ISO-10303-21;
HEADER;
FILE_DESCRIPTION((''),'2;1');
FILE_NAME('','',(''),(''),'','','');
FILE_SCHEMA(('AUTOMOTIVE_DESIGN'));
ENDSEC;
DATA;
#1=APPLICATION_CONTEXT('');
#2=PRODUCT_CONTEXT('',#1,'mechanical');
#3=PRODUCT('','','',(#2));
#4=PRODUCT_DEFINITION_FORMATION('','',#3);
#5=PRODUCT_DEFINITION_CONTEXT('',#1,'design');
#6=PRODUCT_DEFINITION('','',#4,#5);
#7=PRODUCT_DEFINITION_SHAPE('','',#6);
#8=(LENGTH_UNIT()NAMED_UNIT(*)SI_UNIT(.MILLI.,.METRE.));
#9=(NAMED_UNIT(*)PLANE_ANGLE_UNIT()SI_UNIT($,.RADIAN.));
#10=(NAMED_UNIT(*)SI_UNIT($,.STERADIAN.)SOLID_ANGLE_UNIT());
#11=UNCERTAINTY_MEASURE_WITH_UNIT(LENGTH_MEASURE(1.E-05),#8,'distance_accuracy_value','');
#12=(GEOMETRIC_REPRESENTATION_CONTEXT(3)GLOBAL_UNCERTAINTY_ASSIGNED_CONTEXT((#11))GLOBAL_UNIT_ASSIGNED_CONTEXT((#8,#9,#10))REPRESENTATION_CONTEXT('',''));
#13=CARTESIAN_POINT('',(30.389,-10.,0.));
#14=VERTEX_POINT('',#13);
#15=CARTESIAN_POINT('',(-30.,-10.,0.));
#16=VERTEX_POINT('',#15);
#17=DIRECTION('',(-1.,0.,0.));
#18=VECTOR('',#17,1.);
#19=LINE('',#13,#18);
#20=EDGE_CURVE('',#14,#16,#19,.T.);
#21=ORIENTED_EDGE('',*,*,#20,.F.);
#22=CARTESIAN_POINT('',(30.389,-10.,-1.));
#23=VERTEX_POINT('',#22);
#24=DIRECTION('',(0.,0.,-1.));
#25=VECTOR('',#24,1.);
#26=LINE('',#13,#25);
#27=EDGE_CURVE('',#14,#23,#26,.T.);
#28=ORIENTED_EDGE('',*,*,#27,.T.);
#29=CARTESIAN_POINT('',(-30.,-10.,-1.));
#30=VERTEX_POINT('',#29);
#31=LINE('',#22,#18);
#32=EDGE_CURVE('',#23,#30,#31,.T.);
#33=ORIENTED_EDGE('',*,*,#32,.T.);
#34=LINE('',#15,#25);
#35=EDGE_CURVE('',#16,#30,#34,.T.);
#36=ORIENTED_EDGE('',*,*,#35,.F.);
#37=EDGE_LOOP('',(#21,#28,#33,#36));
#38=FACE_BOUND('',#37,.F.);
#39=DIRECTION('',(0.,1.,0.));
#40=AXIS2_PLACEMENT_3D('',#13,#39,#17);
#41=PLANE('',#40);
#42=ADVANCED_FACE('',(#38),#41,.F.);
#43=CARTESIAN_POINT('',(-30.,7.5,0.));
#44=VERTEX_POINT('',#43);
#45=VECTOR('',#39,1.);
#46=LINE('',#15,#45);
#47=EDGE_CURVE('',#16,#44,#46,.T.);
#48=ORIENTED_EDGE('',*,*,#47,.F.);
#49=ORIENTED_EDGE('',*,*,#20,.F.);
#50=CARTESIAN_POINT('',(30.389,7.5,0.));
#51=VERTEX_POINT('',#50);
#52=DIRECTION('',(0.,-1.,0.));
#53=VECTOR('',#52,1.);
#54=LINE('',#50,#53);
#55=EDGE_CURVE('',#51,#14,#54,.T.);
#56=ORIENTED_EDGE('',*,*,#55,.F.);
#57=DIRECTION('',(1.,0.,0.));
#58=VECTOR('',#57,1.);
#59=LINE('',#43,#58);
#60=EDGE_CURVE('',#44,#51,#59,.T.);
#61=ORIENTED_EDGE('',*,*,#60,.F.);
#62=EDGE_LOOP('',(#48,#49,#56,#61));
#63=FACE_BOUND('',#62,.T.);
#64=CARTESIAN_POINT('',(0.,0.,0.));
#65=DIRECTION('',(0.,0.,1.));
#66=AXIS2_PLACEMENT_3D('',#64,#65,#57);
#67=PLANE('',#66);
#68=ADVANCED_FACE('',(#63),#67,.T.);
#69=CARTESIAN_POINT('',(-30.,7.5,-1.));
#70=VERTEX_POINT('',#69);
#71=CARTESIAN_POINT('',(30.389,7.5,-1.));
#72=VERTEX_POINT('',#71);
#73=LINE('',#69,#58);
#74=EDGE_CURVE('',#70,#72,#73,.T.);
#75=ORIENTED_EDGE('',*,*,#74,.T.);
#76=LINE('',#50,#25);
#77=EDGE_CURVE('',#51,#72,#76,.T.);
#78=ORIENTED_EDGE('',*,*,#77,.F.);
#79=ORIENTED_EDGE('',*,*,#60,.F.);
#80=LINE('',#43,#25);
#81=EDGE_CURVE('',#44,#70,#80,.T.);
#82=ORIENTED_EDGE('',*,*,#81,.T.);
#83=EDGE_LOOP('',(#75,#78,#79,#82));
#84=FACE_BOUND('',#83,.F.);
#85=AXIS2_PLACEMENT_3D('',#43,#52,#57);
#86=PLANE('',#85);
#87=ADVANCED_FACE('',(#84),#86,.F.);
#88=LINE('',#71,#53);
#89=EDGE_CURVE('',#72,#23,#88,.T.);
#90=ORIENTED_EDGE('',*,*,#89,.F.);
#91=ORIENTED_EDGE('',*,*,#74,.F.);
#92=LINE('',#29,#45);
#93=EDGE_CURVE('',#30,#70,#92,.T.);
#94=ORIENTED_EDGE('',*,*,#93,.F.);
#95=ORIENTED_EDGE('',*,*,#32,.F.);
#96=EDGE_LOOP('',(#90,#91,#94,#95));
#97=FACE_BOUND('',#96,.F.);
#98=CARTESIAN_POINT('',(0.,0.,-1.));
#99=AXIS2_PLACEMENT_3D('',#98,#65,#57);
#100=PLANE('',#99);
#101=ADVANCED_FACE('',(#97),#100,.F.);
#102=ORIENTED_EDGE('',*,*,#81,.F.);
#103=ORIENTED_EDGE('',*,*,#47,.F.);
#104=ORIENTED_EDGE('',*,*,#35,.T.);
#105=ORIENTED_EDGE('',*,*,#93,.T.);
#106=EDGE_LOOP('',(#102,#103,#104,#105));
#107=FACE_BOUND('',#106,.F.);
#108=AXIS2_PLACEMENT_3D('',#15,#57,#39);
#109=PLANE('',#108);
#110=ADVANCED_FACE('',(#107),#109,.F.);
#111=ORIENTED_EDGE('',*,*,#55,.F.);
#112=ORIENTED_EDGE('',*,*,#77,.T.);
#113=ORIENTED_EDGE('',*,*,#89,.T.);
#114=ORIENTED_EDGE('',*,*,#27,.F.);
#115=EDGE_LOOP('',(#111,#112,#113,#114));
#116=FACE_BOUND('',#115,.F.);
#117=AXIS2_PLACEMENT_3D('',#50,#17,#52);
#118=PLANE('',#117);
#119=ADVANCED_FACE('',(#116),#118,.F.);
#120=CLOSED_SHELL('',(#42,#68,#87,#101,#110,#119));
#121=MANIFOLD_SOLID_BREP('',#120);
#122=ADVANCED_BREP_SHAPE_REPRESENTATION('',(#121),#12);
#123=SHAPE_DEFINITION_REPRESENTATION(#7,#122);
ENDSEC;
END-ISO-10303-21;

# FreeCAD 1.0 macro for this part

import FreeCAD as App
import Part
import Sketcher

doc = App.newDocument("Part")
body = doc.addObject("PartDesign::Body", "Body")

# Sketch on XY plane
sketch1 = body.newObject("Sketcher::SketchObject", "Sketch")
sketch1.AttachmentSupport = (doc.getObject("XY_Plane"), [""])
sketch1.MapMode = "FlatFace"
sketch1.addGeometry([
    Part.LineSegment(App.Vector(30, 8, 0), App.Vector(-30, 8, 0)),
    Part.LineSegment(App.Vector(-30, 8, 0), App.Vector(-30, -10, 0)),
    Part.LineSegment(App.Vector(-30, -10, 0), App.Vector(30, -10, 0)),
    Part.LineSegment(App.Vector(30, -10, 0), App.Vector(30, 8, 0)),
], False)
sketch1.addConstraint([
    Sketcher.Constraint("Coincident", 0, 2, 1, 1),
    Sketcher.Constraint("Coincident", 1, 2, 2, 1),
    Sketcher.Constraint("Coincident", 2, 2, 3, 1),
    Sketcher.Constraint("Coincident", 3, 2, 0, 1),
    Sketcher.Constraint("Horizontal", 0),
    Sketcher.Constraint("Vertical", 1),
    Sketcher.Constraint("Horizontal", 2),
    Sketcher.Constraint("Vertical", 3),
    Sketcher.Constraint("DistanceY", 1, 2, 1, 1, 17.5),
    Sketcher.Constraint("DistanceX", 0, 2, -1, 1, 30.0),
    Sketcher.Constraint("DistanceY", 1, 2, -1, 1, 10.0),
    Sketcher.Constraint("DistanceX", 0, 2, 0, 1, 60.389),
])
pad1 = body.newObject("PartDesign::Pad", "Pad")
pad1.Profile = sketch1
pad1.Length = 1
pad1.Reversed = True

doc.recompute()
